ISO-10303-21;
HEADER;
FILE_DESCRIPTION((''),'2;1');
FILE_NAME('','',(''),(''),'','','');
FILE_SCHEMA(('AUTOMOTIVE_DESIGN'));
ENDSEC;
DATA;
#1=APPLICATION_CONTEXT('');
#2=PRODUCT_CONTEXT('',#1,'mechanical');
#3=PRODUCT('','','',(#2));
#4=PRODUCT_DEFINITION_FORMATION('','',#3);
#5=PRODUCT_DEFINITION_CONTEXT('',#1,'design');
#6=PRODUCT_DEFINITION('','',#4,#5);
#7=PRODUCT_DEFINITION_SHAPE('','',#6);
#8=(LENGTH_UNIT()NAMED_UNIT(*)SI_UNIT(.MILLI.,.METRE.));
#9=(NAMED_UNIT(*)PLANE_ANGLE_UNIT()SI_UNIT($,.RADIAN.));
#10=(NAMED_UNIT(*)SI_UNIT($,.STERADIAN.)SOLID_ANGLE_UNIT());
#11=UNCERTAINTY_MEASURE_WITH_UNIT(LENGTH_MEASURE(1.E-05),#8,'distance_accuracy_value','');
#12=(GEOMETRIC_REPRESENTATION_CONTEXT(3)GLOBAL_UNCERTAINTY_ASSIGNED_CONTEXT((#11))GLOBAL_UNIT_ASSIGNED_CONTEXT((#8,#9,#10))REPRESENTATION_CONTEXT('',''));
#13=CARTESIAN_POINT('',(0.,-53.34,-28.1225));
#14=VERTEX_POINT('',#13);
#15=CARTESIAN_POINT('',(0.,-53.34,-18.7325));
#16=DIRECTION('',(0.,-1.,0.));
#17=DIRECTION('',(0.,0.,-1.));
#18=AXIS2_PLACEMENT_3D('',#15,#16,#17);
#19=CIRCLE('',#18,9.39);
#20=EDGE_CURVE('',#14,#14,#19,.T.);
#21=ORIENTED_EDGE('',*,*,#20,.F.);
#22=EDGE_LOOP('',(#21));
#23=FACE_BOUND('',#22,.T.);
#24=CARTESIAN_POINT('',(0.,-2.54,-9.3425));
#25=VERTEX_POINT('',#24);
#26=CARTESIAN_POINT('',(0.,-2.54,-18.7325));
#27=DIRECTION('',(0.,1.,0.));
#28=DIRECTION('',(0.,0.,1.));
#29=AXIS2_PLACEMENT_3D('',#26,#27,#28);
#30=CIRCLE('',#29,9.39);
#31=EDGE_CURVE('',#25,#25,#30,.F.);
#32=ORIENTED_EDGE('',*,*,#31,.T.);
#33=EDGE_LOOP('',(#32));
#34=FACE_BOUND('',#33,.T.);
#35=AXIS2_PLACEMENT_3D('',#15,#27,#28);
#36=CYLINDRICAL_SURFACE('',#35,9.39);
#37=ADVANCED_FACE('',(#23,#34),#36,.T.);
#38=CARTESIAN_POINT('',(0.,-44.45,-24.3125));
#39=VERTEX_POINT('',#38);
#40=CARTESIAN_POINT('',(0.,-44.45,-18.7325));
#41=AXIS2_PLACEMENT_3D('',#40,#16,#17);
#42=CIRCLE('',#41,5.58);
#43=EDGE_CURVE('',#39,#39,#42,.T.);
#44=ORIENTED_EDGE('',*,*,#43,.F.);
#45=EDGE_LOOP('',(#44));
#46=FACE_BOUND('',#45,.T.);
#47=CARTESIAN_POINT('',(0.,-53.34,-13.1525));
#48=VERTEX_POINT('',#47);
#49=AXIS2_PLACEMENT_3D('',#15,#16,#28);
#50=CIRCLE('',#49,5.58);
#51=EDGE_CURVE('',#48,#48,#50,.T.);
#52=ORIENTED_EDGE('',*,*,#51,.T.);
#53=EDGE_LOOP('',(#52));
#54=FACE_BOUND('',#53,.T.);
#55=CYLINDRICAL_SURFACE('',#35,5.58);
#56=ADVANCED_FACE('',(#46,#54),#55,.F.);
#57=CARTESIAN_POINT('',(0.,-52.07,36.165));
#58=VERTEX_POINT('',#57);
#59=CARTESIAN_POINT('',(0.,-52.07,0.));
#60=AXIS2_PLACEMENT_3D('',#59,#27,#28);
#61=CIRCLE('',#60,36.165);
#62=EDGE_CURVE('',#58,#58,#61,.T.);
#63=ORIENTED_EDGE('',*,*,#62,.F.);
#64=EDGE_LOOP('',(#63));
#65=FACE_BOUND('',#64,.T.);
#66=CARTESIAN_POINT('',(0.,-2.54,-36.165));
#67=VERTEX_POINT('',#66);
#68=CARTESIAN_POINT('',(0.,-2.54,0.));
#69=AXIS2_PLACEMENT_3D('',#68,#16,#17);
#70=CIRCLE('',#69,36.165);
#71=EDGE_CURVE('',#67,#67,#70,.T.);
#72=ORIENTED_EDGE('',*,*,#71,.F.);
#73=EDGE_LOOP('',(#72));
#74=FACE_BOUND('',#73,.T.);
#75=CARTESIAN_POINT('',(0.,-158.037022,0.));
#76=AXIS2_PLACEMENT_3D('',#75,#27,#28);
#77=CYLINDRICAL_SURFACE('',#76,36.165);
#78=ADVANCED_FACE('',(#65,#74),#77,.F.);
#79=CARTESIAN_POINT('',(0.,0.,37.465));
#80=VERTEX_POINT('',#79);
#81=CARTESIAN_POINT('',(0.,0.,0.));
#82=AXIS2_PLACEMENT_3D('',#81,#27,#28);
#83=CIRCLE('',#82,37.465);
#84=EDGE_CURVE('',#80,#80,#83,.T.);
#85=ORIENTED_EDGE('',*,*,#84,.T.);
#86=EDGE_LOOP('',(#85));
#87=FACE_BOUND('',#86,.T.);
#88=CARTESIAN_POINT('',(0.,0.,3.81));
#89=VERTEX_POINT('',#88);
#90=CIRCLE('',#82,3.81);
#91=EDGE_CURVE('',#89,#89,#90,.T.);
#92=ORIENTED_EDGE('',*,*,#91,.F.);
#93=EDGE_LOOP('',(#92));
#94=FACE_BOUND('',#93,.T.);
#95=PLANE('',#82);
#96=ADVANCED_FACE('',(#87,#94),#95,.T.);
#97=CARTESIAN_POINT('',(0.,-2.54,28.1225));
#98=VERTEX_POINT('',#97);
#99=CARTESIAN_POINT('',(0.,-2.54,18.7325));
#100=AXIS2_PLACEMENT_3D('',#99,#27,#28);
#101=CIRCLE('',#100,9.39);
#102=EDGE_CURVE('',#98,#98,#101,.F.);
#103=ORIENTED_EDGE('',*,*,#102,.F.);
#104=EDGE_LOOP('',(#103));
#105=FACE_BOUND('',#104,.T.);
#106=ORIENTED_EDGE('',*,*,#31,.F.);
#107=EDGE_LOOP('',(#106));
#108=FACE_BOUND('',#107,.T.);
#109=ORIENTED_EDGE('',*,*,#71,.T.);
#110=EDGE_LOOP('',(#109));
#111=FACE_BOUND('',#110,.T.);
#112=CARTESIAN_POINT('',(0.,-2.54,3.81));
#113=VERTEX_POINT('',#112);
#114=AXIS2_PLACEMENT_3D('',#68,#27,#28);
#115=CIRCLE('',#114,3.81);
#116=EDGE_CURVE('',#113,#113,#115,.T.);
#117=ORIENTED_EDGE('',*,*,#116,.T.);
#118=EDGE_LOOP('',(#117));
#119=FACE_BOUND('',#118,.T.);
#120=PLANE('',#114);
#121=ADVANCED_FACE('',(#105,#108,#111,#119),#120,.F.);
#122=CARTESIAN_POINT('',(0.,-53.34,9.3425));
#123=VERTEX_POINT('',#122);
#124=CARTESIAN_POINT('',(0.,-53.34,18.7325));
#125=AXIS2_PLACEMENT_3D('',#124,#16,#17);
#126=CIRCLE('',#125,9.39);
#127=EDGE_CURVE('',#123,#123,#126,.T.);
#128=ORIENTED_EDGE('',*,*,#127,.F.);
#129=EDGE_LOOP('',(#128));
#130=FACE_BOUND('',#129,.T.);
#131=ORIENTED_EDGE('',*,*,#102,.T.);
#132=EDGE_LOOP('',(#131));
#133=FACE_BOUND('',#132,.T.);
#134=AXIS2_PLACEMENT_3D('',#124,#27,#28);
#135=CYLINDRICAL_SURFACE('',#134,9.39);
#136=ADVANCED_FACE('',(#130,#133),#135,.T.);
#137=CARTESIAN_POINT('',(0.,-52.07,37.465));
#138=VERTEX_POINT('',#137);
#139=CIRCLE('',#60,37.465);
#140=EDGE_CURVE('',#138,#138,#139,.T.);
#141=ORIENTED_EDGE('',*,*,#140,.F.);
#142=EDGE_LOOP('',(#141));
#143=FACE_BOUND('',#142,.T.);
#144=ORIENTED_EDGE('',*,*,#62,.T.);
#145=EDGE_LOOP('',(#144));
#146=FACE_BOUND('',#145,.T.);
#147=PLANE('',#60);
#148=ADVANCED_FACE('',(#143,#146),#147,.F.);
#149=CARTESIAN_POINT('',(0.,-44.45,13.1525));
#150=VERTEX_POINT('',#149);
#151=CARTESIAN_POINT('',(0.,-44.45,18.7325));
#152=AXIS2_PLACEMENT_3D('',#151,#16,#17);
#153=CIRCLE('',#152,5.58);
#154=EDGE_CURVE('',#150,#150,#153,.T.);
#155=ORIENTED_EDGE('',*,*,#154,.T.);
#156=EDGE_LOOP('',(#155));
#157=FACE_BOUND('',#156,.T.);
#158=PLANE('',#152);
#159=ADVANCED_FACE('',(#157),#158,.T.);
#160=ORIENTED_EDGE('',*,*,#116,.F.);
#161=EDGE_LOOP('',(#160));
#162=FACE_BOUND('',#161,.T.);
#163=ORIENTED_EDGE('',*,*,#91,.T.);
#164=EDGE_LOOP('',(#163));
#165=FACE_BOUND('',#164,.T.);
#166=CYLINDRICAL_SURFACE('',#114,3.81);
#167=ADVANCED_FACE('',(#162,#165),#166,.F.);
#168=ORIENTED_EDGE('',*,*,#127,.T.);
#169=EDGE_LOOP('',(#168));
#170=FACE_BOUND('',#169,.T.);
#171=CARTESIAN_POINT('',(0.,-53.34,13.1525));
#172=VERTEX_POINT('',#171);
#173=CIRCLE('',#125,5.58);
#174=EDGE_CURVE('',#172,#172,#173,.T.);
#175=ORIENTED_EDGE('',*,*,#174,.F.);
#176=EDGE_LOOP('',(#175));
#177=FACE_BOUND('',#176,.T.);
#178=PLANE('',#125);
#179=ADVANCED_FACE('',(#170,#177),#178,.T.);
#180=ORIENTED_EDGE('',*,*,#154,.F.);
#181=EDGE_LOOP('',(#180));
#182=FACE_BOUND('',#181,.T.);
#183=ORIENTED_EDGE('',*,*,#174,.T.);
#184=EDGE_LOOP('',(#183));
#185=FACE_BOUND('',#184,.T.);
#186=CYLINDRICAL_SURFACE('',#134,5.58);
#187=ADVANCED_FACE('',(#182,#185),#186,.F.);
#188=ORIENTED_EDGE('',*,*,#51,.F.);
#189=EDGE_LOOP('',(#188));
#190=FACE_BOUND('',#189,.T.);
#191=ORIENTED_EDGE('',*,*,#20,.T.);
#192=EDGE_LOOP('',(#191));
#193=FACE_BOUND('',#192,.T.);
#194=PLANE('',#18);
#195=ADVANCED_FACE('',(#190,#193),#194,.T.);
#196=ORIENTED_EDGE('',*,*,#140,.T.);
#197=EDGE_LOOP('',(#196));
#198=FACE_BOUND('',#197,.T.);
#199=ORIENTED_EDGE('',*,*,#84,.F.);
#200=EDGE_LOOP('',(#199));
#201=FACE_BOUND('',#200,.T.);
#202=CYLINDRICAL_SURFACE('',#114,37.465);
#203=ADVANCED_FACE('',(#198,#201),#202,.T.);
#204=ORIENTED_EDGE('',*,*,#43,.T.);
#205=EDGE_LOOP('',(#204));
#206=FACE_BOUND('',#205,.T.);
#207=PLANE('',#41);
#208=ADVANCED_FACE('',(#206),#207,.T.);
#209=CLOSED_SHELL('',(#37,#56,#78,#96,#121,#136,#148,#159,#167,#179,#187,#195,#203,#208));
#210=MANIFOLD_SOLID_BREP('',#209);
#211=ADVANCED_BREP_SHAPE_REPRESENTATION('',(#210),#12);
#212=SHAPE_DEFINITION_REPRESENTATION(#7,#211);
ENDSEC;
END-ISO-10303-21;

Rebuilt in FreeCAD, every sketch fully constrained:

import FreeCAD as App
import Part
import Sketcher
Q = App.Units.Quantity

doc = App.newDocument("Part")
body = doc.addObject("PartDesign::Body", "Body")

sketch1 = body.newObject("Sketcher::SketchObject", "Sketch")
sketch1.AttachmentSupport = (doc.getObject("XZ_Plane"), [""])
sketch1.MapMode = "FlatFace"
sketch1.addGeometry(Part.Circle(App.Vector(0, 0, 0), App.Vector(0, 0, 1), 37.5), False)
sketch1.addGeometry(Part.Circle(App.Vector(0, 0, 0), App.Vector(0, 0, 1), 3.8), False)
sketch1.addConstraint(Sketcher.Constraint("Coincident", 0, 3, -1, 1))
sketch1.addConstraint(Sketcher.Constraint("Coincident", 1, 3, -1, 1))
sketch1.addConstraint(Sketcher.Constraint("Diameter", 1, Q("0.3 in")))
sketch1.addConstraint(Sketcher.Constraint("Diameter", 0, Q("2.95 in")))
pad1 = body.newObject("PartDesign::Pad", "Pad")
pad1.Profile = sketch1
pad1.Length = Q("0.1 in")

sketch2 = body.newObject("Sketcher::SketchObject", "Sketch001")
sketch2.AttachmentSupport = (doc.getObject("XZ_Plane"), [""])
sketch2.MapMode = "FlatFace"
sketch2.AttachmentOffset = App.Placement(App.Vector(0, 0, 0.1 * 25.4), App.Rotation())
sketch2.addGeometry(Part.Circle(App.Vector(0, 19, 0), App.Vector(0, 0, 1), 9), False)
sketch2.addGeometry(Part.Circle(App.Vector(0, 19, 0), App.Vector(0, 0, 1), 6), False)
sketch2.addGeometry(Part.Circle(App.Vector(0, -19, 0), App.Vector(0, 0, 1), 9), False)
sketch2.addGeometry(Part.Circle(App.Vector(0, -19, 0), App.Vector(0, 0, 1), 6), False)
sketch2.addConstraint(Sketcher.Constraint("Coincident", 1, 3, 0, 3))
sketch2.addConstraint(Sketcher.Constraint("Coincident", 3, 3, 2, 3))
sketch2.addConstraint(Sketcher.Constraint("Equal", 0, 2))
sketch2.addConstraint(Sketcher.Constraint("Equal", 1, 3))
sketch2.addConstraint(Sketcher.Constraint("Symmetric", 0, 3, 2, 3, -1, 1))
sketch2.addConstraint(Sketcher.Constraint("PointOnObject", 0, 3, -2))
sketch2.addConstraint(Sketcher.Constraint("Diameter", 0, Q("18.78 mm")))
sketch2.addConstraint(Sketcher.Constraint("Diameter", 1, Q("11.16 mm")))
sketch2.addConstraint(Sketcher.Constraint("DistanceY", 2, 3, 0, 3, Q("1.475 in")))
pad2 = body.newObject("PartDesign::Pad", "Pad001")
pad2.Profile = sketch2
pad2.Length = Q("2 in")

sketch3 = body.newObject("Sketcher::SketchObject", "Sketch002")
sketch3.AttachmentSupport = (doc.getObject("XZ_Plane"), [""])
sketch3.MapMode = "FlatFace"
sketch3.AttachmentOffset = App.Placement(App.Vector(0, 0, 0.1 * 25.4), App.Rotation())
sketch3.addGeometry(Part.Circle(App.Vector(0, 0, 0), App.Vector(0, 0, 1), 37), False)
sketch3.addGeometry(Part.Circle(App.Vector(0, 0, 0), App.Vector(0, 0, 1), 36), False)
sketch3.addConstraint(Sketcher.Constraint("Coincident", 0, 3, -1, 1))
sketch3.addConstraint(Sketcher.Constraint("Coincident", 1, 3, -1, 1))
sketch3.addConstraint(Sketcher.Constraint("Diameter", 0, Q("2.95 in")))
sketch3.addConstraint(Sketcher.Constraint("Diameter", 1, Q("72.33 mm")))
pad3 = body.newObject("PartDesign::Pad", "Pad002")
pad3.Profile = sketch3
pad3.Length = Q("1.95 in")

sketch4 = body.newObject("Sketcher::SketchObject", "Sketch003")
sketch4.AttachmentSupport = (doc.getObject("XZ_Plane"), [""])
sketch4.MapMode = "FlatFace"
sketch4.AttachmentOffset = App.Placement(App.Vector(0, 0, 0.1 * 25.4), App.Rotation())
sketch4.addGeometry(Part.Circle(App.Vector(0, 19, 0), App.Vector(0, 0, 1), 6), False)
sketch4.addGeometry(Part.Circle(App.Vector(0, -19, 0), App.Vector(0, 0, 1), 6), False)
sketch4.addConstraint(Sketcher.Constraint("Equal", 0, 1))
sketch4.addConstraint(Sketcher.Constraint("Symmetric", 0, 3, 1, 3, -1, 1))
sketch4.addConstraint(Sketcher.Constraint("PointOnObject", 0, 3, -2))
sketch4.addConstraint(Sketcher.Constraint("Diameter", 0, Q("11.16 mm")))
sketch4.addConstraint(Sketcher.Constraint("DistanceY", 1, 3, 0, 3, Q("1.475 in")))
pad4 = body.newObject("PartDesign::Pad", "Pad003")
pad4.Profile = sketch4
pad4.Length = Q("1.65 in")

doc.recompute()
